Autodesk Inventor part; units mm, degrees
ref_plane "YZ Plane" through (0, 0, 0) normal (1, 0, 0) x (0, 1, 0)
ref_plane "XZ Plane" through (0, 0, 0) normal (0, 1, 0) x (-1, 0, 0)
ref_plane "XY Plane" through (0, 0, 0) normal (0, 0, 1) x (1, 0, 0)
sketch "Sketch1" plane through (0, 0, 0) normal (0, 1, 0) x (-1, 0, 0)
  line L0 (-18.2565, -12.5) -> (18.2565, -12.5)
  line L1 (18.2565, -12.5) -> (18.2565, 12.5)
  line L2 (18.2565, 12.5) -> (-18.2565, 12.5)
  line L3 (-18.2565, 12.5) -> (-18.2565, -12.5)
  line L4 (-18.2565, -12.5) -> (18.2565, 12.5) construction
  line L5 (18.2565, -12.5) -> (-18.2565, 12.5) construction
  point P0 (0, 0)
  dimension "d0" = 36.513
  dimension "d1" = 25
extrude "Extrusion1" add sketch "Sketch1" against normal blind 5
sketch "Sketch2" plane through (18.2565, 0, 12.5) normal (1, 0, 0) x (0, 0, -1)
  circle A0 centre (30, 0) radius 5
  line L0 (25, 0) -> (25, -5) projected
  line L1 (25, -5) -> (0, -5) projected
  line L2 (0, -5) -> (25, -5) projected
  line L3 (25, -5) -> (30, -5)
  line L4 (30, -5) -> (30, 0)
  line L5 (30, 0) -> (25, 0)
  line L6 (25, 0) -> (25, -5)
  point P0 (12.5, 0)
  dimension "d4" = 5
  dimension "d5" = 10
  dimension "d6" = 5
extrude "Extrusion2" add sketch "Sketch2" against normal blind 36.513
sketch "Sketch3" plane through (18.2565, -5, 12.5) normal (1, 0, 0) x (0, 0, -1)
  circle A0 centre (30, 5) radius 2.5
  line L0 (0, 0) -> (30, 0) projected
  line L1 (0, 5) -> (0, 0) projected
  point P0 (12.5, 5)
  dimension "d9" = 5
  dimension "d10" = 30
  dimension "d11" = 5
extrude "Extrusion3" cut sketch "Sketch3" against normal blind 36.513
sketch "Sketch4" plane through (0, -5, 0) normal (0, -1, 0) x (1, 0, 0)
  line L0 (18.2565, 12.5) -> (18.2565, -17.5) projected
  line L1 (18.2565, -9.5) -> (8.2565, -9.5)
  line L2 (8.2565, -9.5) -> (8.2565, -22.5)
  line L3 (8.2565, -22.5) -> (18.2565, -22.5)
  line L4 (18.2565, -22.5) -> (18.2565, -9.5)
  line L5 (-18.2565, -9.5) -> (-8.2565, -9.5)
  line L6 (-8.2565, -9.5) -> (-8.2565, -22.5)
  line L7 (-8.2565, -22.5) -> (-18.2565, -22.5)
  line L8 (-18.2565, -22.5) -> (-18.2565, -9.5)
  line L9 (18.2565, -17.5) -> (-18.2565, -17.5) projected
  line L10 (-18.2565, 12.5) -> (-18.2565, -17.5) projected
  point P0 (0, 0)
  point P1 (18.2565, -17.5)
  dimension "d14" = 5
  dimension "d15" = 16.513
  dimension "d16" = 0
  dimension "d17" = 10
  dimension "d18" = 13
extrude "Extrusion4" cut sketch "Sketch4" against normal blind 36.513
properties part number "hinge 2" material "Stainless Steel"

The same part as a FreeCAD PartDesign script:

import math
import FreeCAD as App
import Part
import Sketcher

doc = App.newDocument("Part")
params = doc.addObject("Spreadsheet::Sheet", "Params")
for row, (alias, value) in enumerate([
    ("sketch1_height", "25 mm"),
    ("pad1_length", "5 mm"),
    ("sketch2_radius", "5 mm"),
    ("pad2_length", "36.513 mm"),
    ("sketch3_diameter", "5 mm"),
    ("pocket1_length", "36.513 mm"),
    ("sketch4_width", "10 mm"),
    ("sketch4_height", "13 mm"),
    ("pocket2_length", "36.513 mm"),
], start=1):
    params.set(f"A{row}", alias)
    params.set(f"B{row}", "=" + value)
    params.setAlias(f"B{row}", alias)

body = doc.addObject("PartDesign::Body", "Body")

sketch1 = doc.addObject("Sketcher::SketchObject", "Sketch")
body.addObject(sketch1)
sketch1.AttachmentSupport = (doc.XZ_Plane, [""])
sketch1.MapMode = "FlatFace"
sketch1.addGeometry([
    Part.LineSegment(App.Vector(18, 12, 0), App.Vector(18, -12, 0)),
    Part.LineSegment(App.Vector(18, -12, 0), App.Vector(-18, -12, 0)),
    Part.LineSegment(App.Vector(-18, -12, 0), App.Vector(-18, 12, 0)),
    Part.LineSegment(App.Vector(-18, 12, 0), App.Vector(18, 12, 0)),
], False)
sketch1.addConstraint([
    Sketcher.Constraint("Coincident", 0, 2, 1, 1),
    Sketcher.Constraint("Coincident", 1, 2, 2, 1),
    Sketcher.Constraint("Coincident", 2, 2, 3, 1),
    Sketcher.Constraint("Coincident", 3, 2, 0, 1),
    Sketcher.Constraint("Vertical", 0),
    Sketcher.Constraint("Horizontal", 1),
    Sketcher.Constraint("Vertical", 2),
    Sketcher.Constraint("Horizontal", 3),
    Sketcher.Constraint("Symmetric", 0, 2, 2, 2, -1, 1),
    Sketcher.Constraint("DistanceY", 0, 2, 0, 1, 25.0),
    Sketcher.Constraint("DistanceX", 1, 2, 1, 1, 36.513),
])
sketch1.setExpression("Constraints[9]", "Params.sketch1_height")
pad1 = doc.addObject("PartDesign::Pad", "Pad")
body.addObject(pad1)
pad1.Profile = sketch1
pad1.setExpression("Length", "Params.pad1_length")

sketch2 = doc.addObject("Sketcher::SketchObject", "Sketch001")
body.addObject(sketch2)
sketch2.AttachmentSupport = (doc.YZ_Plane, [""])
sketch2.MapMode = "FlatFace"
sketch2.AttachmentOffset = App.Placement(App.Vector(0, 0, 18.2565), App.Rotation())
sketch2.addGeometry([
    Part.ArcOfCircle(Part.Circle(App.Vector(0, -18, 0), App.Vector(0, 0, 1), 5), math.radians(180), math.radians(450)),
    Part.LineSegment(App.Vector(0, -12, 0), App.Vector(-5, -12, 0)),
    Part.LineSegment(App.Vector(-5, -12, 0), App.Vector(-5, -18, 0)),
], False)
sketch2.addConstraint([
    Sketcher.Constraint("Tangent", 0, 2, 1, 1),
    Sketcher.Constraint("Coincident", 1, 2, 2, 1),
    Sketcher.Constraint("Tangent", 2, 2, 0, 1),
    Sketcher.Constraint("Horizontal", 1),
    Sketcher.Constraint("Vertical", 2),
    Sketcher.Constraint("PointOnObject", 0, 3, -2),
    Sketcher.Constraint("Radius", 0, 5.0),
    Sketcher.Constraint("DistanceY", 0, 3, -1, 1, 17.5),
])
sketch2.setExpression("Constraints[6]", "Params.sketch2_radius")
pad2 = doc.addObject("PartDesign::Pad", "Pad001")
body.addObject(pad2)
pad2.Profile = sketch2
pad2.setExpression("Length", "Params.pad2_length")
pad2.Reversed = True

sketch3 = doc.addObject("Sketcher::SketchObject", "Sketch002")
body.addObject(sketch3)
sketch3.AttachmentSupport = (doc.YZ_Plane, [""])
sketch3.MapMode = "FlatFace"
sketch3.AttachmentOffset = App.Placement(App.Vector(0, 0, 18.2565), App.Rotation())
sketch3.addGeometry(Part.Circle(App.Vector(0, -17.5, 0), App.Vector(0, 0, 1), 2.5), False)
sketch3.addConstraint([
    Sketcher.Constraint("PointOnObject", 0, 3, -2),
    Sketcher.Constraint("Diameter", 0, 5.0),
    Sketcher.Constraint("DistanceY", 0, 3, -1, 1, 17.5),
])
sketch3.setExpression("Constraints[1]", "Params.sketch3_diameter")
pocket1 = doc.addObject("PartDesign::Pocket", "Pocket")
body.addObject(pocket1)
pocket1.Profile = sketch3
pocket1.setExpression("Length", "Params.pocket1_length")

sketch4 = doc.addObject("Sketcher::SketchObject", "Sketch003")
body.addObject(sketch4)
sketch4.AttachmentSupport = (doc.XZ_Plane, [""])
sketch4.MapMode = "FlatFace"
sketch4.AttachmentOffset = App.Placement(App.Vector(0, 0, 5), App.Rotation())
sketch4.addGeometry([
    Part.LineSegment(App.Vector(-8, -22, 0), App.Vector(-8, -10, 0)),
    Part.LineSegment(App.Vector(-8, -10, 0), App.Vector(-18, -10, 0)),
    Part.LineSegment(App.Vector(-18, -10, 0), App.Vector(-18, -22, 0)),
    Part.LineSegment(App.Vector(-18, -22, 0), App.Vector(-8, -22, 0)),
    Part.LineSegment(App.Vector(18, -10, 0), App.Vector(8, -10, 0)),
    Part.LineSegment(App.Vector(8, -10, 0), App.Vector(8, -22, 0)),
    Part.LineSegment(App.Vector(8, -22, 0), App.Vector(18, -22, 0)),
    Part.LineSegment(App.Vector(18, -22, 0), App.Vector(18, -10, 0)),
], False)
sketch4.addConstraint([
    Sketcher.Constraint("Coincident", 0, 2, 1, 1),
    Sketcher.Constraint("Coincident", 1, 2, 2, 1),
    Sketcher.Constraint("Coincident", 2, 2, 3, 1),
    Sketcher.Constraint("Coincident", 3, 2, 0, 1),
    Sketcher.Constraint("Coincident", 4, 2, 5, 1),
    Sketcher.Constraint("Coincident", 5, 2, 6, 1),
    Sketcher.Constraint("Coincident", 6, 2, 7, 1),
    Sketcher.Constraint("Coincident", 7, 2, 4, 1),
    Sketcher.Constraint("Vertical", 0),
    Sketcher.Constraint("Horizontal", 1),
    Sketcher.Constraint("Vertical", 2),
    Sketcher.Constraint("Horizontal", 3),
    Sketcher.Constraint("Horizontal", 4),
    Sketcher.Constraint("Vertical", 5),
    Sketcher.Constraint("Horizontal", 6),
    Sketcher.Constraint("Vertical", 7),
    Sketcher.Constraint("Symmetric", 0, 2, 4, 2, -2),
    Sketcher.Constraint("Symmetric", 2, 2, 6, 2, -2),
    Sketcher.Constraint("DistanceX", 1, 2, 1, 1, 10.0),
    Sketcher.Constraint("DistanceY", 0, 1, 0, 2, 13.0),
    Sketcher.Constraint("DistanceX", 0, 2, 4, 2, 16.513),
    Sketcher.Constraint("DistanceY", 0, 2, -1, 1, 9.5),
])
sketch4.setExpression("Constraints[18]", "Params.sketch4_width")
sketch4.setExpression("Constraints[19]", "Params.sketch4_height")
pocket2 = doc.addObject("PartDesign::Pocket", "Pocket001")
body.addObject(pocket2)
pocket2.Profile = sketch4
pocket2.setExpression("Length", "Params.pocket2_length")

doc.recompute()
